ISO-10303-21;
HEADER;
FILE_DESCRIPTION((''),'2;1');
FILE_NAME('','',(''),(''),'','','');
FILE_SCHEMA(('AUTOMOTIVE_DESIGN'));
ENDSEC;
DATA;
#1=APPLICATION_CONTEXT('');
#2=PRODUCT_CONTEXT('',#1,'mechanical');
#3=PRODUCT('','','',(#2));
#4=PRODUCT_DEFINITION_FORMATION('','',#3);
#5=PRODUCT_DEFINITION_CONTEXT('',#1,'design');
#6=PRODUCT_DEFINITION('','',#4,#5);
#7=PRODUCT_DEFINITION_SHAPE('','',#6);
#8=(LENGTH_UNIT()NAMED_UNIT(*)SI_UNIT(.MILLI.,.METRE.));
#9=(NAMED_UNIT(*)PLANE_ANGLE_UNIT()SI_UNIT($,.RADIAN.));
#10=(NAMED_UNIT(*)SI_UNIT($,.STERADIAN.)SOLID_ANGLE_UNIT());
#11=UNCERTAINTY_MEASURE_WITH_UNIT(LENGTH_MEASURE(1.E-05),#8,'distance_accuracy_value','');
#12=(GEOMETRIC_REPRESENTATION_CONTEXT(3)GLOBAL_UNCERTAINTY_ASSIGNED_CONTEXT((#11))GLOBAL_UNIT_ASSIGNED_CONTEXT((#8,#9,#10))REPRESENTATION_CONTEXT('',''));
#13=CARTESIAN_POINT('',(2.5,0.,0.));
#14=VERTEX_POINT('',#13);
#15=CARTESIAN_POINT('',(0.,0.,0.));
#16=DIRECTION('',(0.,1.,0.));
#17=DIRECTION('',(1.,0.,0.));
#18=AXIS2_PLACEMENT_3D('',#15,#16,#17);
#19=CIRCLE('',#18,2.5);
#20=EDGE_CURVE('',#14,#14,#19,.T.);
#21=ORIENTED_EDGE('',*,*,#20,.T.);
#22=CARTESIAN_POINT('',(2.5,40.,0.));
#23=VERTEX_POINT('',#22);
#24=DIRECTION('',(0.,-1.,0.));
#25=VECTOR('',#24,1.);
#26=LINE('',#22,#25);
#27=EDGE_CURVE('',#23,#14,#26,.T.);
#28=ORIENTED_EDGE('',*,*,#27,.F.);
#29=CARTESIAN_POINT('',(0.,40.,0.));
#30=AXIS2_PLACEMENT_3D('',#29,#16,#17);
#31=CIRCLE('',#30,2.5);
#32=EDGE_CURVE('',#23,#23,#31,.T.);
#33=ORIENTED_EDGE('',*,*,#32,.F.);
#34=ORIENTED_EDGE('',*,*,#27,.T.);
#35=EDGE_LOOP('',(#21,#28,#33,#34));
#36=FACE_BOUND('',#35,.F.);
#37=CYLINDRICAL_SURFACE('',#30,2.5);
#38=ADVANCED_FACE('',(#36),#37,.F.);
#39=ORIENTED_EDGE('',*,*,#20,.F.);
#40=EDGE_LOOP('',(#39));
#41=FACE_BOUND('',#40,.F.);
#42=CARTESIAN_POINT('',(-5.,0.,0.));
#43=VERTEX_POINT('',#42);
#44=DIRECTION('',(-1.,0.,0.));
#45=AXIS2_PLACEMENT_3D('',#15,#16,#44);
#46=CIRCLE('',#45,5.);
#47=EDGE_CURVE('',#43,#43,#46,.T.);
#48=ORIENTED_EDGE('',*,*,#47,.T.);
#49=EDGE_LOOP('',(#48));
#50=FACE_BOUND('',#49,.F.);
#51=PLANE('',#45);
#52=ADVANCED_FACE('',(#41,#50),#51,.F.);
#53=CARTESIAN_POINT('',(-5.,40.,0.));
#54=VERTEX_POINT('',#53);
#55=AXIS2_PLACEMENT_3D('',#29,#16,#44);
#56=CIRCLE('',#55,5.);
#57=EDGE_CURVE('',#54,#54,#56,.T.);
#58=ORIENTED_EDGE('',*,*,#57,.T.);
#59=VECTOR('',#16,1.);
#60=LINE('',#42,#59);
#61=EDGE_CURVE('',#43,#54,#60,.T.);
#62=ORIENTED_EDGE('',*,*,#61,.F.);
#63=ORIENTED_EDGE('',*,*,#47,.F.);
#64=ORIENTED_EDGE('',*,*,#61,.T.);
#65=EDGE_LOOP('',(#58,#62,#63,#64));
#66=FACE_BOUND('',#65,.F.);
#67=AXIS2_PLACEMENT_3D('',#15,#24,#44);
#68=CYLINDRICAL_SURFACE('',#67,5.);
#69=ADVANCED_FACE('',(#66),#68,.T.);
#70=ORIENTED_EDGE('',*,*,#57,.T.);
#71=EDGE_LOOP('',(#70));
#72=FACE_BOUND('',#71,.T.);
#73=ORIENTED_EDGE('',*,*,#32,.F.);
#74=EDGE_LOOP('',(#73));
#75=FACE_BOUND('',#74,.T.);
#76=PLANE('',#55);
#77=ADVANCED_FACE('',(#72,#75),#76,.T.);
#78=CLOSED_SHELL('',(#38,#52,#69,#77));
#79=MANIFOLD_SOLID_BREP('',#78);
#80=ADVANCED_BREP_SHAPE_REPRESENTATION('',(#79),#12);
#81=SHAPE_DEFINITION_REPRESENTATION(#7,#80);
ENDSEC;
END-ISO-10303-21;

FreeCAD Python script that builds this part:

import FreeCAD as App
import Part
import Sketcher
from FreeCAD import Vector

doc = App.newDocument("Part")
params = doc.addObject("Spreadsheet::Sheet", "Params")
for row, (alias, value) in enumerate([
    ("sketch1_diameter", "10 mm"),
    ("pad1_length", "40 mm"),
    ("sketch2_diameter", "5 mm"),
    ("pocket1_length", "40 mm"),
], start=1):
    params.set(f"A{row}", alias)
    params.set(f"B{row}", "=" + value)
    params.setAlias(f"B{row}", alias)

body = doc.addObject("PartDesign::Body", "Body")

sketch1 = body.newObject("Sketcher::SketchObject", "Sketch")
sketch1.AttachmentSupport = (doc.getObject("XZ_Plane"), [""])
sketch1.MapMode = "FlatFace"
sketch1.addGeometry(Part.Circle(Vector(0, 0, 0), Vector(0, 0, 1), 5), False)
sketch1.addConstraint([
    Sketcher.Constraint("Coincident", 0, 3, -1, 1),
    Sketcher.Constraint("Diameter", 0, 10.0),
])
sketch1.setExpression("Constraints[1]", "Params.sketch1_diameter")
pad1 = body.newObject("PartDesign::Pad", "Pad")
pad1.Profile = sketch1
pad1.setExpression("Length", "Params.pad1_length")
pad1.Reversed = True

sketch2 = body.newObject("Sketcher::SketchObject", "Sketch001")
sketch2.AttachmentSupport = (doc.getObject("XZ_Plane"), [""])
sketch2.MapMode = "FlatFace"
sketch2.AttachmentOffset = App.Placement(Vector(0, 0, -40), App.Rotation())
sketch2.addGeometry(Part.Circle(Vector(0, 0, 0), Vector(0, 0, 1), 2.5), False)
sketch2.addConstraint([
    Sketcher.Constraint("Coincident", 0, 3, -1, 1),
    Sketcher.Constraint("Diameter", 0, 5.0),
])
sketch2.setExpression("Constraints[1]", "Params.sketch2_diameter")
pocket1 = body.newObject("PartDesign::Pocket", "Pocket")
pocket1.Profile = sketch2
pocket1.setExpression("Length", "Params.pocket1_length")
pocket1.Reversed = True

doc.recompute()
